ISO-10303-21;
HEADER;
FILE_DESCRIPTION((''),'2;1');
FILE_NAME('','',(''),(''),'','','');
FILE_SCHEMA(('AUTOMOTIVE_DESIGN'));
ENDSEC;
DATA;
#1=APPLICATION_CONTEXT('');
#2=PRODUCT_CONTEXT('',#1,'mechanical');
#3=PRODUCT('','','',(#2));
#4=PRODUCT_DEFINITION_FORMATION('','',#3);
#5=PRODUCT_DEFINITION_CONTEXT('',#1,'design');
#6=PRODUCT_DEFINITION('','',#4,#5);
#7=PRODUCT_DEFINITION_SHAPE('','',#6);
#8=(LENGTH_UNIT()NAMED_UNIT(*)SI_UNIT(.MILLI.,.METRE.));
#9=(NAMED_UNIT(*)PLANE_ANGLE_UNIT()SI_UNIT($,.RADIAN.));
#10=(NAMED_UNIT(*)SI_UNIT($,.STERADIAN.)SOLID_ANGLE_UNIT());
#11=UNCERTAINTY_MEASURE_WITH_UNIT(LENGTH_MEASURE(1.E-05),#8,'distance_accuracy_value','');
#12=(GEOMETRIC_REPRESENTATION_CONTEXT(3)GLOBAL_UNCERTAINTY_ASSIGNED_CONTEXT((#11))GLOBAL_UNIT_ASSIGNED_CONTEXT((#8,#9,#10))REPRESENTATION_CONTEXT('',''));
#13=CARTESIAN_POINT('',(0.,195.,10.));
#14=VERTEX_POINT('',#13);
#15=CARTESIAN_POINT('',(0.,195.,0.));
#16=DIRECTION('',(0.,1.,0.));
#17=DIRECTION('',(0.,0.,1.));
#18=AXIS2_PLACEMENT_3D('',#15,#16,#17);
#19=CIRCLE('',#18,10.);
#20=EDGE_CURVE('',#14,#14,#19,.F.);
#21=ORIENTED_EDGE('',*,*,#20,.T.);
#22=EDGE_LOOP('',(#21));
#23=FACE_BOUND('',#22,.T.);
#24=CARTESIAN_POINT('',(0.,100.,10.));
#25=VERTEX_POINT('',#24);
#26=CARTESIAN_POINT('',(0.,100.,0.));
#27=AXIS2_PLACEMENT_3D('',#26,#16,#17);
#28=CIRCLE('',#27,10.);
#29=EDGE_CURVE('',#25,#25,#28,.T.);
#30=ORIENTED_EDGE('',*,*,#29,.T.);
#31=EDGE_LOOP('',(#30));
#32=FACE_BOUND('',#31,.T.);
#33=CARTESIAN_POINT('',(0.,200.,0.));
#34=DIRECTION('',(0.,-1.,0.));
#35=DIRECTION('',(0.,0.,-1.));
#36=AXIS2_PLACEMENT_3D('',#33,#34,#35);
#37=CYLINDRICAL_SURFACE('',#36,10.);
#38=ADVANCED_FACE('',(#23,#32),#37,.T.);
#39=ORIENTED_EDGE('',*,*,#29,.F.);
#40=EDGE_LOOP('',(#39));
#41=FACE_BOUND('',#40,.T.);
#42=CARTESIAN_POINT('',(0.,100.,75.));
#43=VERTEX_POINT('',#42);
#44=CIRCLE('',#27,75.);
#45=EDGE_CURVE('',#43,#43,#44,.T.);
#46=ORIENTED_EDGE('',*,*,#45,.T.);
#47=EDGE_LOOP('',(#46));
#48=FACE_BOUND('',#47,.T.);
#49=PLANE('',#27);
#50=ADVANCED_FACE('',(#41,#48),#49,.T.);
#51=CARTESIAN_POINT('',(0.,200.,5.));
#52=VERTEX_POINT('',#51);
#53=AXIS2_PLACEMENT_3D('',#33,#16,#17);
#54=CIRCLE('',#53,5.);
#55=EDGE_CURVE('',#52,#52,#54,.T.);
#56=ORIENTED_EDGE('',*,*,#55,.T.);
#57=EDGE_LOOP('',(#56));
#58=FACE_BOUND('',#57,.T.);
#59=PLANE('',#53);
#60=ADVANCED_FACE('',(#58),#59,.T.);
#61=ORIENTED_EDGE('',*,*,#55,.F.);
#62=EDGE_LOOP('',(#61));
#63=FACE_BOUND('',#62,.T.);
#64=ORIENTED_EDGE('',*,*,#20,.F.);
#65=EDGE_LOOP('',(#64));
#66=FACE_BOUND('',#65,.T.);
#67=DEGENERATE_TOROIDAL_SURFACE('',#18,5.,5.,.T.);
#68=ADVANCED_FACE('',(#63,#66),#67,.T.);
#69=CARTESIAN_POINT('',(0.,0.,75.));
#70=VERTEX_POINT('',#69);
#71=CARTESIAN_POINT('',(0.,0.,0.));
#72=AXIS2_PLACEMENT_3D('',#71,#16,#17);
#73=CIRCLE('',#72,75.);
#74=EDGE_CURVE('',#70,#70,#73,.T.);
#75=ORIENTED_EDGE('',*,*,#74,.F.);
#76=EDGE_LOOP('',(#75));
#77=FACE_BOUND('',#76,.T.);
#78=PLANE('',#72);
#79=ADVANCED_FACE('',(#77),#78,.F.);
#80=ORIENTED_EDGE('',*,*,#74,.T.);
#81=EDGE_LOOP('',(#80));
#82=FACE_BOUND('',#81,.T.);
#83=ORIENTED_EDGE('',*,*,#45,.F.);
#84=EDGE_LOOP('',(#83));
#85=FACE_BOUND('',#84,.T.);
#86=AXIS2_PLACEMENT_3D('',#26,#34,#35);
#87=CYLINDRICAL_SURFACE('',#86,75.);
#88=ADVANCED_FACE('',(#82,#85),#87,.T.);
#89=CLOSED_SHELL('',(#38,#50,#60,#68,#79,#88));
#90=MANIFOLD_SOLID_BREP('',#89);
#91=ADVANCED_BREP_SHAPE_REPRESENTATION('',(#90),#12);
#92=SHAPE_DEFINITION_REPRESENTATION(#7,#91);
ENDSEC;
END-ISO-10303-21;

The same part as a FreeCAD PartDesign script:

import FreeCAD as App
import Part
import Sketcher
Q = App.Units.Quantity


def edges_at(feature, points):
    """Names of the edges that pass closest to the given points."""
    edges = feature.Shape.Edges
    near = lambda p: min(range(len(edges)), key=lambda i: edges[i].distToShape(Part.Vertex(*p))[0])
    return sorted({f"Edge{near(p) + 1}" for p in points})

doc = App.newDocument("Part")
params = doc.addObject("Spreadsheet::Sheet", "Params")
for row, (alias, value) in enumerate([
    ("sketch1_diameter", "150 mm"),
    ("pad1_length", "100 mm"),
    ("sketch2_diameter", "20 mm"),
    ("pad2_length", "100 mm"),
    ("fillet_radius", "5 mm"),
], start=1):
    params.set(f"A{row}", alias)
    params.set(f"B{row}", "=" + value)
    params.setAlias(f"B{row}", alias)

body = doc.addObject("PartDesign::Body", "Body")

sketch1 = doc.addObject("Sketcher::SketchObject", "Sketch")
body.addObject(sketch1)
sketch1.AttachmentSupport = (doc.XZ_Plane, [""])
sketch1.MapMode = "FlatFace"
sketch1.addGeometry(Part.Circle(App.Vector(0, 0, 0), App.Vector(0, 0, 1), 75), False)
sketch1.addConstraint(Sketcher.Constraint("Coincident", 0, 3, -1, 1))
sketch1.addConstraint(Sketcher.Constraint("Diameter", 0, Q("150 mm")))
sketch1.setExpression("Constraints[1]", "Params.sketch1_diameter")
pad1 = doc.addObject("PartDesign::Pad", "Pad")
body.addObject(pad1)
pad1.Profile = sketch1
pad1.setExpression("Length", "Params.pad1_length")
pad1.Reversed = True

sketch2 = doc.addObject("Sketcher::SketchObject", "Sketch001")
body.addObject(sketch2)
sketch2.AttachmentSupport = (doc.XZ_Plane, [""])
sketch2.MapMode = "FlatFace"
sketch2.AttachmentOffset = App.Placement(App.Vector(0, 0, -100), App.Rotation())
sketch2.addGeometry(Part.Circle(App.Vector(0, 0, 0), App.Vector(0, 0, 1), 10), False)
sketch2.addConstraint(Sketcher.Constraint("Coincident", 0, 3, -1, 1))
sketch2.addConstraint(Sketcher.Constraint("Diameter", 0, Q("20 mm")))
sketch2.setExpression("Constraints[1]", "Params.sketch2_diameter")
pad2 = doc.addObject("PartDesign::Pad", "Pad001")
body.addObject(pad2)
pad2.Profile = sketch2
pad2.setExpression("Length", "Params.pad2_length")
pad2.Reversed = True
doc.recompute()

fillet = doc.addObject("PartDesign::Fillet", "Fillet")
body.addObject(fillet)
fillet.Base = (pad2, edges_at(pad2, [(-10, 200, 0)]))
fillet.setExpression("Radius", "Params.fillet_radius")

doc.recompute()
